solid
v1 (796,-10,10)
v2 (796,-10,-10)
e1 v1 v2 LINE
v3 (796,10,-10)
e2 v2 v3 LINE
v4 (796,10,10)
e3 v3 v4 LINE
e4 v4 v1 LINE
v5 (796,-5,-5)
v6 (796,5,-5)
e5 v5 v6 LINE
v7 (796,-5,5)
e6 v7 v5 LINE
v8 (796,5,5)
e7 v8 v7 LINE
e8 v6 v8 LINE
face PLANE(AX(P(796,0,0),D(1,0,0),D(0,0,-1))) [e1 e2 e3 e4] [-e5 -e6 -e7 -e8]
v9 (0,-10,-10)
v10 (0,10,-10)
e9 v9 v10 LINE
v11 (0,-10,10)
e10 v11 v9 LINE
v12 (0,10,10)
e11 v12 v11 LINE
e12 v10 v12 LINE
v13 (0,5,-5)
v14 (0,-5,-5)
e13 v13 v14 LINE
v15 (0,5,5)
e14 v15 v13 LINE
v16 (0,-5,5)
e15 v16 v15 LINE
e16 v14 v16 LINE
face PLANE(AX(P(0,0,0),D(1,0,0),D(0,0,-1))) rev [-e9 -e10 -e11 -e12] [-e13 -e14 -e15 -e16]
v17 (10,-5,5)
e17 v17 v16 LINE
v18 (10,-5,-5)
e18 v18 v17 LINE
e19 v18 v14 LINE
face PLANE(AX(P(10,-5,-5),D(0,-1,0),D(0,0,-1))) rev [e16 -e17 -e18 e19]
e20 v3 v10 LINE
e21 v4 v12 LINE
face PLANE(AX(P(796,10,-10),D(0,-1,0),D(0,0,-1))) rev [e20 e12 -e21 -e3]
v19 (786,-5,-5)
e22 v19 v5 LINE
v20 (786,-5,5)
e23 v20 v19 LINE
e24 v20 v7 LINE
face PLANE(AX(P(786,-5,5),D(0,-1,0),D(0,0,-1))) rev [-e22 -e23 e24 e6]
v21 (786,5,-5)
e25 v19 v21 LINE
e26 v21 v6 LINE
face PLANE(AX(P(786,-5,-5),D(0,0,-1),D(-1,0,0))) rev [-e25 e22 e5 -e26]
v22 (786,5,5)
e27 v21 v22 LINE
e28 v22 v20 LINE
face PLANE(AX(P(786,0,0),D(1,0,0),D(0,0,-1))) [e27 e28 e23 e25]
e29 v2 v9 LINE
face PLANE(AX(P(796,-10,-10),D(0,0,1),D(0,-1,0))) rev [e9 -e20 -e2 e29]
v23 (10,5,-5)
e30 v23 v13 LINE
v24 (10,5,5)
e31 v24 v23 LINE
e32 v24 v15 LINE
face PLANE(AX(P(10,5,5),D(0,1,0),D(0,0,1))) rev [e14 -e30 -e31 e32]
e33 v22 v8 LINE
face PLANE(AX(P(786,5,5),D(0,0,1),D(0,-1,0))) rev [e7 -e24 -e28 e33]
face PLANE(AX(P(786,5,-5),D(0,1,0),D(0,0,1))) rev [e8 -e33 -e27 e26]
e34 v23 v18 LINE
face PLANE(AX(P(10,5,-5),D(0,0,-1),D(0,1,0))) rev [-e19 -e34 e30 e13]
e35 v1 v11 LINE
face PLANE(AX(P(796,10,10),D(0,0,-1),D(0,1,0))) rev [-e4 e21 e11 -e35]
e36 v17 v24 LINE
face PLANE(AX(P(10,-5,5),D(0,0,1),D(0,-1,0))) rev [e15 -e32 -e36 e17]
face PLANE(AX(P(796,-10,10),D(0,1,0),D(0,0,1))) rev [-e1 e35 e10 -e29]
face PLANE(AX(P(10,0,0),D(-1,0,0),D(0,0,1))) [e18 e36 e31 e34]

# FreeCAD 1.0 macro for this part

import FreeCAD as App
import Part
import Sketcher
Q = App.Units.Quantity


def add_polygon(sketch, points):
    """Adds a closed chain of lines whose ends are joined by coincident constraints."""
    first, n = sketch.GeometryCount, len(points)
    for a, b in zip(points, points[1:] + points[:1]):
        sketch.addGeometry(Part.LineSegment(App.Vector(*a, 0), App.Vector(*b, 0)), False)
    for i in range(n):
        sketch.addConstraint(Sketcher.Constraint("Coincident", first + i, 2, first + (i + 1) % n, 1))

doc = App.newDocument("Part")
params = doc.addObject("Spreadsheet::Sheet", "Params")
for row, (alias, value) in enumerate([
    ("sketch1_width", "20 mm"),
    ("pad1_length", "796 mm"),
    ("sketch2_width", "10 mm"),
    ("pocket1_length", "10 mm"),
    ("sketch3_width", "10 mm"),
    ("pocket2_length", "10 mm"),
], start=1):
    params.set(f"A{row}", alias)
    params.set(f"B{row}", "=" + value)
    params.setAlias(f"B{row}", alias)

body = doc.addObject("PartDesign::Body", "Body")

# Sketch on YZ plane
sketch1 = body.newObject("Sketcher::SketchObject", "Sketch")
sketch1.AttachmentSupport = (doc.getObject("YZ_Plane"), [""])
sketch1.MapMode = "FlatFace"
add_polygon(sketch1, [(10, 10), (-10, 10), (-10, -10), (10, -10)])  # lines 0-3
sketch1.addConstraint(Sketcher.Constraint("Horizontal", 0))
sketch1.addConstraint(Sketcher.Constraint("Vertical", 1))
sketch1.addConstraint(Sketcher.Constraint("Horizontal", 2))
sketch1.addConstraint(Sketcher.Constraint("Vertical", 3))
sketch1.addConstraint(Sketcher.Constraint("Symmetric", 0, 2, 2, 2, -1, 1))
sketch1.addConstraint(Sketcher.Constraint("Equal", 2, 1))
sketch1.addConstraint(Sketcher.Constraint("DistanceX", 0, 2, 0, 1, Q("20 mm")))
sketch1.setExpression("Constraints[10]", "Params.sketch1_width")
pad1 = body.newObject("PartDesign::Pad", "Pad")
pad1.Profile = sketch1
pad1.setExpression("Length", "Params.pad1_length")

# Sketch on YZ plane
sketch2 = body.newObject("Sketcher::SketchObject", "Sketch001")
sketch2.AttachmentSupport = (doc.getObject("YZ_Plane"), [""])
sketch2.MapMode = "FlatFace"
sketch2.AttachmentOffset = App.Placement(App.Vector(0, 0, 796), App.Rotation())
add_polygon(sketch2, [(5, 5), (-5, 5), (-5, -5), (5, -5)])  # lines 0-3
sketch2.addConstraint(Sketcher.Constraint("Horizontal", 0))
sketch2.addConstraint(Sketcher.Constraint("Vertical", 1))
sketch2.addConstraint(Sketcher.Constraint("Horizontal", 2))
sketch2.addConstraint(Sketcher.Constraint("Vertical", 3))
sketch2.addConstraint(Sketcher.Constraint("Symmetric", 0, 2, 2, 2, -1, 1))
sketch2.addConstraint(Sketcher.Constraint("Equal", 2, 1))
sketch2.addConstraint(Sketcher.Constraint("DistanceX", 0, 2, 0, 1, Q("10 mm")))
sketch2.setExpression("Constraints[10]", "Params.sketch2_width")
pocket1 = body.newObject("PartDesign::Pocket", "Pocket")
pocket1.Profile = sketch2
pocket1.setExpression("Length", "Params.pocket1_length")

# Sketch on YZ plane
sketch3 = body.newObject("Sketcher::SketchObject", "Sketch002")
sketch3.AttachmentSupport = (doc.getObject("YZ_Plane"), [""])
sketch3.MapMode = "FlatFace"
add_polygon(sketch3, [(5, -5), (-5, -5), (-5, 5), (5, 5)])  # lines 0-3
sketch3.addConstraint(Sketcher.Constraint("Horizontal", 0))
sketch3.addConstraint(Sketcher.Constraint("Vertical", 1))
sketch3.addConstraint(Sketcher.Constraint("Horizontal", 2))
sketch3.addConstraint(Sketcher.Constraint("Vertical", 3))
sketch3.addConstraint(Sketcher.Constraint("Symmetric", 0, 2, 2, 2, -1, 1))
sketch3.addConstraint(Sketcher.Constraint("Equal", 2, 1))
sketch3.addConstraint(Sketcher.Constraint("DistanceX", 0, 2, 0, 1, Q("10 mm")))
sketch3.setExpression("Constraints[10]", "Params.sketch3_width")
pocket2 = body.newObject("PartDesign::Pocket", "Pocket001")
pocket2.Profile = sketch3
pocket2.setExpression("Length", "Params.pocket2_length")
pocket2.Reversed = True

doc.recompute()
